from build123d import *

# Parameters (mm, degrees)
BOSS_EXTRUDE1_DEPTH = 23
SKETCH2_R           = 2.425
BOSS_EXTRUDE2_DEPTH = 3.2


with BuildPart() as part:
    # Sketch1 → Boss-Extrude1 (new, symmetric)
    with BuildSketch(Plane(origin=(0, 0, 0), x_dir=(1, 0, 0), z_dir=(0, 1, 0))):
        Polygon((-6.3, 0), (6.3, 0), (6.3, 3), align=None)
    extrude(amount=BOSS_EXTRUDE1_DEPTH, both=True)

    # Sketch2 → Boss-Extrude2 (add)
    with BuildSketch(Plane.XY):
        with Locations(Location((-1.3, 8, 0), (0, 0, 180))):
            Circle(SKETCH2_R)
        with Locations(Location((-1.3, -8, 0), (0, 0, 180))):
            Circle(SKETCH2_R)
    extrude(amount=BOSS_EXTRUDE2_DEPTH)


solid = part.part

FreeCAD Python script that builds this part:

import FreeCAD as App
import Part
import Sketcher
Q = App.Units.Quantity

doc = App.newDocument("Part")
body = doc.addObject("PartDesign::Body", "Body")

sketch1 = body.newObject("Sketcher::SketchObject", "Sketch")
sketch1.AttachmentSupport = (doc.getObject("XZ_Plane"), [""])
sketch1.MapMode = "FlatFace"
sketch1.addGeometry([
    Part.LineSegment(App.Vector(-6.3, 0, 0), App.Vector(6.3, 0, 0)),
    Part.LineSegment(App.Vector(6.3, 0, 0), App.Vector(6.3, -3, 0)),
    Part.LineSegment(App.Vector(6.3, -3, 0), App.Vector(-6.3, 0, 0)),
], False)
sketch1.addConstraint([
    Sketcher.Constraint("Coincident", 0, 2, 1, 1),
    Sketcher.Constraint("Coincident", 1, 2, 2, 1),
    Sketcher.Constraint("Coincident", 2, 2, 0, 1),
    Sketcher.Constraint("Horizontal", 0),
    Sketcher.Constraint("Vertical", 1),
    Sketcher.Constraint("Symmetric", 0, 2, 2, 2, -1, 1),
    Sketcher.Constraint("DistanceY", 1, 2, 1, 1, Q("3 mm")),
    Sketcher.Constraint("DistanceX", 0, 1, 0, 2, Q("12.6 mm")),
])
pad1 = body.newObject("PartDesign::Pad", "Pad")
pad1.Profile = sketch1
pad1.Length = 46
pad1.Midplane = True

sketch2 = body.newObject("Sketcher::SketchObject", "Sketch001")
sketch2.AttachmentSupport = (doc.getObject("XY_Plane"), [""])
sketch2.MapMode = "FlatFace"
sketch2.addGeometry([
    Part.Circle(App.Vector(-1.3, 8, 0), App.Vector(0, 0, 1), 2.425),
    Part.Circle(App.Vector(-1.3, -8, 0), App.Vector(0, 0, 1), 2.425),
], False)
sketch2.addConstraint([
    Sketcher.Constraint("Equal", 0, 1),
    Sketcher.Constraint("Symmetric", 0, 3, 1, 3, -1),
    Sketcher.Constraint("Diameter", 0, Q("4.85 mm")),
    Sketcher.Constraint("DistanceY", -1, 1, 0, 3, Q("8 mm")),
    Sketcher.Constraint("DistanceX", 0, 3, -1, 1, Q("1.3 mm")),
])
pad2 = body.newObject("PartDesign::Pad", "Pad001")
pad2.Profile = sketch2
pad2.Length = 3.2

doc.recompute()
